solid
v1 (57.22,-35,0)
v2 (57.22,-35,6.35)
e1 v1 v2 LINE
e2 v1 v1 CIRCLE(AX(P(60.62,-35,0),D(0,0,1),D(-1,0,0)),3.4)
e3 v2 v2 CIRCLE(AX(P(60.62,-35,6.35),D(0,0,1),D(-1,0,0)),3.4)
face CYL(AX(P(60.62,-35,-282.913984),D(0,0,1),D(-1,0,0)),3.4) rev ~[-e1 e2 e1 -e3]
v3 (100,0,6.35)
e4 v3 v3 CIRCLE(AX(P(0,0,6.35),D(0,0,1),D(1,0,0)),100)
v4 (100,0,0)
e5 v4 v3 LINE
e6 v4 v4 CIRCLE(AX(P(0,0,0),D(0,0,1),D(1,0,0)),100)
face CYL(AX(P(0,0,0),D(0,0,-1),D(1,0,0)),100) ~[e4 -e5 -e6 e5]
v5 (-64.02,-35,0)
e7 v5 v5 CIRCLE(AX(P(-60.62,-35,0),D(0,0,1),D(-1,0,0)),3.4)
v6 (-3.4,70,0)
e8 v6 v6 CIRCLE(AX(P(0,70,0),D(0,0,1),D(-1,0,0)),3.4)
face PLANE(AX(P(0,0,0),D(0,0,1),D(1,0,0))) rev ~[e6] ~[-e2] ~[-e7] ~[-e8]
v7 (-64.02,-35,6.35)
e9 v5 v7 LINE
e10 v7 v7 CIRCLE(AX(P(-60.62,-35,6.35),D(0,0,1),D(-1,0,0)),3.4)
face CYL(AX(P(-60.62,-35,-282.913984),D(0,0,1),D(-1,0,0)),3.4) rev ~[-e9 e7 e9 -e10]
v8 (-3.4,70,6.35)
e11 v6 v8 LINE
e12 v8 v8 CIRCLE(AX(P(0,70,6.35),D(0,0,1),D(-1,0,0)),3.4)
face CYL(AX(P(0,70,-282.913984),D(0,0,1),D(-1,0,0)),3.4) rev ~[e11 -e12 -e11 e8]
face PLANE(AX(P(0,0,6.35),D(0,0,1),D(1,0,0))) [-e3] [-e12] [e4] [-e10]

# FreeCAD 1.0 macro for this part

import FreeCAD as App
import Part
import Sketcher

V = App.Vector
Q = App.Units.Quantity

doc = App.newDocument("Part")
body = doc.addObject("PartDesign::Body", "Body")

# Sketch on XY plane
sketch1 = doc.addObject("Sketcher::SketchObject", "Sketch")
body.addObject(sketch1)
sketch1.AttachmentSupport = (doc.XY_Plane, [""])
sketch1.MapMode = "FlatFace"
sketch1.addGeometry(Part.Circle(V(0, 0, 0), V(0, 0, 1), 100), False)
sketch1.addConstraint([
    Sketcher.Constraint("Coincident", 0, 3, -1, 1),
    Sketcher.Constraint("Diameter", 0, Q("200 mm")),
])
pad1 = doc.addObject("PartDesign::Pad", "Pad")
body.addObject(pad1)
pad1.Profile = sketch1
pad1.Length = 6.35

# Sketch on XY plane
sketch2 = doc.addObject("Sketcher::SketchObject", "Sketch001")
body.addObject(sketch2)
sketch2.AttachmentSupport = (doc.XY_Plane, [""])
sketch2.MapMode = "FlatFace"
sketch2.addGeometry([
    Part.Circle(V(60.62, -35, 0), V(0, 0, 1), 3.4),
    Part.Circle(V(0, 70, 0), V(0, 0, 1), 3.4),
    Part.Circle(V(-60.62, -35, 0), V(0, 0, 1), 3.4),
], False)
sketch2.addConstraint([
    Sketcher.Constraint("Equal", 0, 1),
    Sketcher.Constraint("Equal", 1, 2),
    Sketcher.Constraint("Symmetric", 0, 3, 2, 3, -2),
    Sketcher.Constraint("PointOnObject", 1, 3, -2),
    Sketcher.Constraint("Diameter", 0, Q("6.8 mm")),
    Sketcher.Constraint("DistanceY", 0, 3, -1, 1, Q("35 mm")),
    Sketcher.Constraint("DistanceY", -1, 1, 1, 3, Q("70 mm")),
    Sketcher.Constraint("DistanceX", -1, 1, 0, 3, Q("60.62 mm")),
])
doc.recompute()
hole = doc.addObject("PartDesign::Hole", "Hole")
body.addObject(hole)
hole.Profile = sketch2
hole.ThreadType = "None"
hole.Diameter = 6.8
hole.DepthType = "ThroughAll"
hole.Reversed = True

doc.recompute()
